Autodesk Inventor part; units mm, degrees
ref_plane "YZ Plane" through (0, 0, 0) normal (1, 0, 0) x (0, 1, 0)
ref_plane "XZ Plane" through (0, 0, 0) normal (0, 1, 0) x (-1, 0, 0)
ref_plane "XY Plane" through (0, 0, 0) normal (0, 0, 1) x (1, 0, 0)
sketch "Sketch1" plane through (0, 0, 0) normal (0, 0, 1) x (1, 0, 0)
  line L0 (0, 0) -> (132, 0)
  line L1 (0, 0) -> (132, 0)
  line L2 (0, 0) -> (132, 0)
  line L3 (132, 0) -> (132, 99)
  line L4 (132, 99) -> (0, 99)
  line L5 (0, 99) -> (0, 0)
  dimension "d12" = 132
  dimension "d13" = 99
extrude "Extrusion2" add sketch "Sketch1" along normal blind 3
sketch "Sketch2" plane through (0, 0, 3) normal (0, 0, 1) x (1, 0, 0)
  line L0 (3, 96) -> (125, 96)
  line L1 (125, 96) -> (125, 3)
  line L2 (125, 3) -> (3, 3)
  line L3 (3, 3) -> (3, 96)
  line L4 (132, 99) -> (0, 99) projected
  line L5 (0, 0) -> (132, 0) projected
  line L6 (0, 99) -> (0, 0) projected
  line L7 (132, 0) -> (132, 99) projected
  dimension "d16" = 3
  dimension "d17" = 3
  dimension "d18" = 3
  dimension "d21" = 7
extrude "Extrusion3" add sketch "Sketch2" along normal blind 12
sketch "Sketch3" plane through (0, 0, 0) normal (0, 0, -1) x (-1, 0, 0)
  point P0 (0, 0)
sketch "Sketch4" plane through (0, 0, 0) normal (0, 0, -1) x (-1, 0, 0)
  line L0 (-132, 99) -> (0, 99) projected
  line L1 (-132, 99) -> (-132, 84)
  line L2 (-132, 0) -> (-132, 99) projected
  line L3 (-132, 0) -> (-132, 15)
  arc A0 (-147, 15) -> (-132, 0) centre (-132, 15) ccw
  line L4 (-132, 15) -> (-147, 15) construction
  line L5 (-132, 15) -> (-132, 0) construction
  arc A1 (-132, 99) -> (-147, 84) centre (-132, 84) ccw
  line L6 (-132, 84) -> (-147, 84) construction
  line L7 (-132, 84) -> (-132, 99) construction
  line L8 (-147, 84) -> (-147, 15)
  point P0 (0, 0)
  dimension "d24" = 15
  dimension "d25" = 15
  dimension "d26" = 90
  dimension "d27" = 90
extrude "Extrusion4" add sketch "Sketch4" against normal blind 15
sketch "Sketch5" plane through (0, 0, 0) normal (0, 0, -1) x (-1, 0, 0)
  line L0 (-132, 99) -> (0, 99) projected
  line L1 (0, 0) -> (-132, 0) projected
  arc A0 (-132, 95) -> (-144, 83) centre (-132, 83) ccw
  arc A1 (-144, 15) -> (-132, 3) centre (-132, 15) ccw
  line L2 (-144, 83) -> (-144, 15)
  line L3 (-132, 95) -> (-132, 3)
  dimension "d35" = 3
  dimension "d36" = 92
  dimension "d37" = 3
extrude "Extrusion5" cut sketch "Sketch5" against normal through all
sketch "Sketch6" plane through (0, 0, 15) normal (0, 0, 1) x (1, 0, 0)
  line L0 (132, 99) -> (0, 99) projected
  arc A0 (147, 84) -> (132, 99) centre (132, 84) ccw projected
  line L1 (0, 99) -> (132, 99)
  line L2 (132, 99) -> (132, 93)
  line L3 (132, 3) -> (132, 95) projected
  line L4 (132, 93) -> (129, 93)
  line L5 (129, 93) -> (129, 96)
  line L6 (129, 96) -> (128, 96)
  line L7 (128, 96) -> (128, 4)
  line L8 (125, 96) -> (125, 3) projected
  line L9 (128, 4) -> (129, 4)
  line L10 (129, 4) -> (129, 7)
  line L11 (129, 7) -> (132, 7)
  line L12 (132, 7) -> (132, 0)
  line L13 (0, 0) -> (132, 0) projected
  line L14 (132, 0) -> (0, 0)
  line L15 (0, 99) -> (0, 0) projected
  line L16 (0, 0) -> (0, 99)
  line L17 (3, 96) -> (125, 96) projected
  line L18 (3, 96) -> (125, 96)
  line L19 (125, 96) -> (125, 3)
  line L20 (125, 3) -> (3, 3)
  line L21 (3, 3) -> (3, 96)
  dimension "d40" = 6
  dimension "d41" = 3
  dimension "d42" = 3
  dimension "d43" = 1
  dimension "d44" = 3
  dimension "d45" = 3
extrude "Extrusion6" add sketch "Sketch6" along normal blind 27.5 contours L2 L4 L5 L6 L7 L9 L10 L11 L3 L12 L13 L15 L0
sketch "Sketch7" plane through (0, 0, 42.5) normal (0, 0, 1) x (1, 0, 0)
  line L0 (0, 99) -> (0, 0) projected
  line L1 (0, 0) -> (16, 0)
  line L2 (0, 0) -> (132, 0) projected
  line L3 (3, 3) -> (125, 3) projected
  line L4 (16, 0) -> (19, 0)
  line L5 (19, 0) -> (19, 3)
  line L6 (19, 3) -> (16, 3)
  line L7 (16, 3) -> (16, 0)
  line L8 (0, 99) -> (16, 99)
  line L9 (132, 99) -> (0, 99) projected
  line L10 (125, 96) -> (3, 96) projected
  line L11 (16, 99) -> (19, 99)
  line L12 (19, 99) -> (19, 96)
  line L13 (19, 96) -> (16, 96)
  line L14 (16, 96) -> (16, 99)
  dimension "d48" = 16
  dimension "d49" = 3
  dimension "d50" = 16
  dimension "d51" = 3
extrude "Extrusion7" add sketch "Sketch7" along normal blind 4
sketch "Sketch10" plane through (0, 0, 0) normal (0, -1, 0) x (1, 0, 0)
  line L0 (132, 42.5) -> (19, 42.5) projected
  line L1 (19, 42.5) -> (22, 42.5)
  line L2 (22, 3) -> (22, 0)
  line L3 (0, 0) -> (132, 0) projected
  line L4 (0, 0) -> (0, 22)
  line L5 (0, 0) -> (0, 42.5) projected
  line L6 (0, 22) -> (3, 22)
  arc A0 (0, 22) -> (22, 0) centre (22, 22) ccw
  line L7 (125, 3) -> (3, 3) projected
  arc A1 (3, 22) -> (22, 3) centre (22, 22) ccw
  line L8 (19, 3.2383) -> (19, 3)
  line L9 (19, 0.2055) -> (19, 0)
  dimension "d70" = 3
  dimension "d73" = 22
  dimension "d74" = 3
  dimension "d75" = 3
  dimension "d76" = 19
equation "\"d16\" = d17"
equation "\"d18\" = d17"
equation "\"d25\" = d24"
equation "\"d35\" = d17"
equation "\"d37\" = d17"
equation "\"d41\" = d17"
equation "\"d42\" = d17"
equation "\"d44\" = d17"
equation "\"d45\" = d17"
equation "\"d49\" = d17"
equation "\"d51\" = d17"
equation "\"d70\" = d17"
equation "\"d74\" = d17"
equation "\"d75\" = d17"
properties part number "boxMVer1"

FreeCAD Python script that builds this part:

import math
import FreeCAD as App
import Part
import Sketcher

V = App.Vector
Q = App.Units.Quantity

doc = App.newDocument("Part")
body = doc.addObject("PartDesign::Body", "Body")

# Sketch on XY plane
sketch1 = body.newObject("Sketcher::SketchObject", "Sketch")
sketch1.AttachmentSupport = (doc.getObject("XY_Plane"), [""])
sketch1.MapMode = "FlatFace"
sketch1.addGeometry([
    Part.LineSegment(V(0, 99, 0), V(0, 0, 0)),
    Part.LineSegment(V(0, 0, 0), V(132, 0, 0)),
    Part.LineSegment(V(132, 0, 0), V(132, 99, 0)),
    Part.LineSegment(V(132, 99, 0), V(0, 99, 0)),
], False)
sketch1.addConstraint([
    Sketcher.Constraint("Coincident", 0, 2, 1, 1),
    Sketcher.Constraint("Coincident", 1, 2, 2, 1),
    Sketcher.Constraint("Coincident", 2, 2, 3, 1),
    Sketcher.Constraint("Coincident", 3, 2, 0, 1),
    Sketcher.Constraint("Vertical", 0),
    Sketcher.Constraint("Horizontal", 1),
    Sketcher.Constraint("Vertical", 2),
    Sketcher.Constraint("Horizontal", 3),
    Sketcher.Constraint("Coincident", 0, 2, -1, 1),
    Sketcher.Constraint("DistanceX", 1, 1, 1, 2, Q("132 mm")),
    Sketcher.Constraint("DistanceY", 0, 2, 0, 1, Q("99 mm")),
])
pad1 = body.newObject("PartDesign::Pad", "Pad")
pad1.Profile = sketch1
pad1.Length = 3

# Sketch on XY plane
sketch2 = body.newObject("Sketcher::SketchObject", "Sketch001")
sketch2.AttachmentSupport = (doc.getObject("XY_Plane"), [""])
sketch2.MapMode = "FlatFace"
sketch2.AttachmentOffset = App.Placement(V(0, 0, 3), App.Rotation())
sketch2.addGeometry([
    Part.LineSegment(V(132, 0, 0), V(132, 99, 0)),  # 0
    Part.LineSegment(V(132, 99, 0), V(0, 99, 0)),  # 1
    Part.LineSegment(V(0, 99, 0), V(0, 0, 0)),  # 2
    Part.LineSegment(V(0, 0, 0), V(132, 0, 0)),  # 3
    Part.LineSegment(V(3, 3, 0), V(3, 96, 0)),  # 4
    Part.LineSegment(V(3, 96, 0), V(125, 96, 0)),  # 5
    Part.LineSegment(V(125, 96, 0), V(125, 3, 0)),  # 6
    Part.LineSegment(V(125, 3, 0), V(3, 3, 0)),  # 7
], False)
sketch2.addConstraint([
    Sketcher.Constraint("Coincident", 0, 2, 1, 1),
    Sketcher.Constraint("Coincident", 1, 2, 2, 1),
    Sketcher.Constraint("Coincident", 2, 2, 3, 1),
    Sketcher.Constraint("Coincident", 3, 2, 0, 1),
    Sketcher.Constraint("Coincident", 4, 2, 5, 1),
    Sketcher.Constraint("Coincident", 5, 2, 6, 1),
    Sketcher.Constraint("Coincident", 6, 2, 7, 1),
    Sketcher.Constraint("Coincident", 7, 2, 4, 1),
    Sketcher.Constraint("Vertical", 0),
    Sketcher.Constraint("Horizontal", 1),
    Sketcher.Constraint("Vertical", 2),
    Sketcher.Constraint("Horizontal", 3),
    Sketcher.Constraint("Vertical", 4),
    Sketcher.Constraint("Horizontal", 5),
    Sketcher.Constraint("Vertical", 6),
    Sketcher.Constraint("Horizontal", 7),
    Sketcher.Constraint("Coincident", 2, 2, -1, 1),
    Sketcher.Constraint("DistanceX", -1, 1, 4, 2, Q("3 mm")),
    Sketcher.Constraint("DistanceY", -1, 1, 6, 2, Q("3 mm")),
    Sketcher.Constraint("DistanceY", 4, 2, 1, 2, Q("3 mm")),
    Sketcher.Constraint("DistanceX", 5, 2, 0, 2, Q("7 mm")),
    Sketcher.Constraint("DistanceX", 1, 2, 1, 1, Q("132 mm")),
    Sketcher.Constraint("DistanceY", 0, 1, 0, 2, Q("99 mm")),
])
pad2 = body.newObject("PartDesign::Pad", "Pad001")
pad2.Profile = sketch2
pad2.Length = 12

# Sketch on XY plane
sketch3 = body.newObject("Sketcher::SketchObject", "Sketch002")
sketch3.AttachmentSupport = (doc.getObject("XY_Plane"), [""])
sketch3.MapMode = "FlatFace"
sketch3.addGeometry([
    Part.LineSegment(V(132, 0, 0), V(132, 99, 0)),
    Part.ArcOfCircle(Part.Circle(V(132, 84, 0), V(0, 0, 1), 15), math.radians(0), math.radians(90)),
    Part.LineSegment(V(147, 84, 0), V(147, 15, 0)),
    Part.ArcOfCircle(Part.Circle(V(132, 15, 0), V(0, 0, 1), 15), math.radians(-90), math.radians(0)),
], False)
sketch3.addConstraint([
    Sketcher.Constraint("Coincident", 0, 2, 1, 2),
    Sketcher.Constraint("Tangent", 1, 1, 2, 1),
    Sketcher.Constraint("Tangent", 2, 2, 3, 2),
    Sketcher.Constraint("Coincident", 3, 1, 0, 1),
    Sketcher.Constraint("Vertical", 0),
    Sketcher.Constraint("Vertical", 2),
    Sketcher.Constraint("Equal", 1, 3),
    Sketcher.Constraint("PointOnObject", 3, 1, -1),
    Sketcher.Constraint("Vertical", 3, 3, 0, 2),
    Sketcher.Constraint("Radius", 1, Q("15 mm")),
    Sketcher.Constraint("DistanceY", 0, 1, 0, 2, Q("99 mm")),
    Sketcher.Constraint("DistanceX", -1, 1, 1, 3, Q("132 mm")),
])
pad3 = body.newObject("PartDesign::Pad", "Pad002")
pad3.Profile = sketch3
pad3.Length = 15

# Sketch on XY plane
sketch4 = body.newObject("Sketcher::SketchObject", "Sketch003")
sketch4.AttachmentSupport = (doc.getObject("XY_Plane"), [""])
sketch4.MapMode = "FlatFace"
sketch4.addGeometry([
    Part.LineSegment(V(132, 3, 0), V(132, 95, 0)),
    Part.ArcOfCircle(Part.Circle(V(132, 83, 0), V(0, 0, 1), 12), math.radians(0), math.radians(90)),
    Part.LineSegment(V(144, 83, 0), V(144, 15, 0)),
    Part.ArcOfCircle(Part.Circle(V(132, 15, 0), V(0, 0, 1), 12), math.radians(-90), math.radians(0)),
], False)
sketch4.addConstraint([
    Sketcher.Constraint("Coincident", 0, 2, 1, 2),
    Sketcher.Constraint("Tangent", 1, 1, 2, 1),
    Sketcher.Constraint("Tangent", 2, 2, 3, 2),
    Sketcher.Constraint("Coincident", 3, 1, 0, 1),
    Sketcher.Constraint("Vertical", 0),
    Sketcher.Constraint("Vertical", 2),
    Sketcher.Constraint("Equal", 1, 3),
    Sketcher.Constraint("Vertical", 3, 3, 0, 2),
    Sketcher.Constraint("DistanceY", 0, 1, 0, 2, Q("92 mm")),
    Sketcher.Constraint("DistanceY", -1, 1, 3, 1, Q("3 mm")),
    Sketcher.Constraint("Radius", 1, Q("12 mm")),
    Sketcher.Constraint("DistanceX", -1, 1, 1, 3, Q("132 mm")),
])
pocket1 = body.newObject("PartDesign::Pocket", "Pocket")
pocket1.Profile = sketch4
pocket1.Type = "ThroughAll"
pocket1.Reversed = True

# Sketch on XY plane
sketch5 = body.newObject("Sketcher::SketchObject", "Sketch004")
sketch5.AttachmentSupport = (doc.getObject("XY_Plane"), [""])
sketch5.MapMode = "FlatFace"
sketch5.AttachmentOffset = App.Placement(V(0, 0, 15), App.Rotation())
sketch5.addGeometry([
    Part.LineSegment(V(132, 93, 0), V(132, 99, 0)),  # 0
    Part.LineSegment(V(132, 99, 0), V(0, 99, 0)),  # 1
    Part.LineSegment(V(0, 99, 0), V(0, 0, 0)),  # 2
    Part.LineSegment(V(0, 0, 0), V(132, 0, 0)),  # 3
    Part.LineSegment(V(132, 0, 0), V(132, 7, 0)),  # 4
    Part.LineSegment(V(132, 7, 0), V(129, 7, 0)),  # 5
    Part.LineSegment(V(129, 7, 0), V(129, 4, 0)),  # 6
    Part.LineSegment(V(129, 4, 0), V(128, 4, 0)),  # 7
    Part.LineSegment(V(128, 4, 0), V(128, 96, 0)),  # 8
    Part.LineSegment(V(128, 96, 0), V(129, 96, 0)),  # 9
    Part.LineSegment(V(129, 96, 0), V(129, 93, 0)),  # 10
    Part.LineSegment(V(129, 93, 0), V(132, 93, 0)),  # 11
    Part.LineSegment(V(3, 96, 0), V(125, 96, 0)),  # 12
    Part.LineSegment(V(125, 96, 0), V(125, 3, 0)),  # 13
    Part.LineSegment(V(125, 3, 0), V(3, 3, 0)),  # 14
    Part.LineSegment(V(3, 3, 0), V(3, 96, 0)),  # 15
], False)
sketch5.addConstraint([
    Sketcher.Constraint("Coincident", 0, 2, 1, 1),
    Sketcher.Constraint("Coincident", 1, 2, 2, 1),
    Sketcher.Constraint("Coincident", 2, 2, 3, 1),
    Sketcher.Constraint("Coincident", 3, 2, 4, 1),
    Sketcher.Constraint("Coincident", 4, 2, 5, 1),
    Sketcher.Constraint("Coincident", 5, 2, 6, 1),
    Sketcher.Constraint("Coincident", 6, 2, 7, 1),
    Sketcher.Constraint("Coincident", 7, 2, 8, 1),
    Sketcher.Constraint("Coincident", 8, 2, 9, 1),
    Sketcher.Constraint("Coincident", 9, 2, 10, 1),
    Sketcher.Constraint("Coincident", 10, 2, 11, 1),
    Sketcher.Constraint("Coincident", 11, 2, 0, 1),
    Sketcher.Constraint("Coincident", 12, 2, 13, 1),
    Sketcher.Constraint("Coincident", 13, 2, 14, 1),
    Sketcher.Constraint("Coincident", 14, 2, 15, 1),
    Sketcher.Constraint("Coincident", 15, 2, 12, 1),
    Sketcher.Constraint("Vertical", 0),
    Sketcher.Constraint("Horizontal", 1),
    Sketcher.Constraint("Vertical", 2),
    Sketcher.Constraint("Horizontal", 3),
    Sketcher.Constraint("Vertical", 4),
    Sketcher.Constraint("Horizontal", 5),
    Sketcher.Constraint("Vertical", 6),
    Sketcher.Constraint("Horizontal", 7),
    Sketcher.Constraint("Vertical", 8),
    Sketcher.Constraint("Horizontal", 9),
    Sketcher.Constraint("Vertical", 10),
    Sketcher.Constraint("Horizontal", 11),
    Sketcher.Constraint("Horizontal", 12),
    Sketcher.Constraint("Vertical", 13),
    Sketcher.Constraint("Horizontal", 14),
    Sketcher.Constraint("Vertical", 15),
    Sketcher.Constraint("Coincident", 2, 2, -1, 1),
    Sketcher.Constraint("Horizontal", 9, 2, 12, 2),
    Sketcher.Constraint("Vertical", 0, 2, 3, 2),
    Sketcher.Constraint("Vertical", 6, 2, 9, 2),
    Sketcher.Constraint("Equal", 11, 6),
    Sketcher.Constraint("Equal", 6, 10),
    Sketcher.Constraint("DistanceX", 5, 2, 5, 1, Q("3 mm")),
    Sketcher.Constraint("DistanceX", 7, 2, 7, 1, Q("1 mm")),
    Sketcher.Constraint("DistanceY", 0, 1, 0, 2, Q("6 mm")),
    Sketcher.Constraint("DistanceY", -1, 1, 13, 2, Q("3 mm")),
    Sketcher.Constraint("DistanceX", -1, 1, 14, 2, Q("3 mm")),
    Sketcher.Constraint("DistanceX", 12, 2, 8, 2, Q("3 mm")),
    Sketcher.Constraint("DistanceY", 13, 2, 7, 2, Q("1 mm")),
    Sketcher.Constraint("DistanceX", 1, 2, 1, 1, Q("132 mm")),
    Sketcher.Constraint("DistanceY", 2, 2, 2, 1, Q("99 mm")),
])
pad4 = body.newObject("PartDesign::Pad", "Pad003")
pad4.Profile = sketch5
pad4.Length = 27.5

# Sketch on XY plane
sketch6 = body.newObject("Sketcher::SketchObject", "Sketch005")
sketch6.AttachmentSupport = (doc.getObject("XY_Plane"), [""])
sketch6.MapMode = "FlatFace"
sketch6.AttachmentOffset = App.Placement(V(0, 0, 42.5), App.Rotation())
sketch6.addGeometry([
    Part.LineSegment(V(16, 3, 0), V(16, 0, 0)),  # 0
    Part.LineSegment(V(16, 0, 0), V(19, 0, 0)),  # 1
    Part.LineSegment(V(19, 0, 0), V(19, 3, 0)),  # 2
    Part.LineSegment(V(19, 3, 0), V(16, 3, 0)),  # 3
    Part.LineSegment(V(19, 99, 0), V(16, 99, 0)),  # 4
    Part.LineSegment(V(16, 99, 0), V(16, 96, 0)),  # 5
    Part.LineSegment(V(16, 96, 0), V(19, 96, 0)),  # 6
    Part.LineSegment(V(19, 96, 0), V(19, 99, 0)),  # 7
], False)
sketch6.addConstraint([
    Sketcher.Constraint("Coincident", 0, 2, 1, 1),
    Sketcher.Constraint("Coincident", 1, 2, 2, 1),
    Sketcher.Constraint("Coincident", 2, 2, 3, 1),
    Sketcher.Constraint("Coincident", 3, 2, 0, 1),
    Sketcher.Constraint("Coincident", 4, 2, 5, 1),
    Sketcher.Constraint("Coincident", 5, 2, 6, 1),
    Sketcher.Constraint("Coincident", 6, 2, 7, 1),
    Sketcher.Constraint("Coincident", 7, 2, 4, 1),
    Sketcher.Constraint("Vertical", 0),
    Sketcher.Constraint("Horizontal", 1),
    Sketcher.Constraint("Vertical", 2),
    Sketcher.Constraint("Horizontal", 3),
    Sketcher.Constraint("Horizontal", 4),
    Sketcher.Constraint("Vertical", 5),
    Sketcher.Constraint("Horizontal", 6),
    Sketcher.Constraint("Vertical", 7),
    Sketcher.Constraint("PointOnObject", 0, 2, -1),
    Sketcher.Constraint("Vertical", 3, 2, 4, 2),
    Sketcher.Constraint("Vertical", 2, 2, 6, 2),
    Sketcher.Constraint("Equal", 6, 0),
    Sketcher.Constraint("Equal", 2, 5),
    Sketcher.Constraint("DistanceX", 1, 1, 1, 2, Q("3 mm")),
    Sketcher.Constraint("DistanceX", -1, 1, 0, 2, Q("16 mm")),
    Sketcher.Constraint("DistanceY", -1, 1, 4, 2, Q("99 mm")),
])
pad5 = body.newObject("PartDesign::Pad", "Pad004")
pad5.Profile = sketch6
pad5.Length = 4

doc.recompute()
